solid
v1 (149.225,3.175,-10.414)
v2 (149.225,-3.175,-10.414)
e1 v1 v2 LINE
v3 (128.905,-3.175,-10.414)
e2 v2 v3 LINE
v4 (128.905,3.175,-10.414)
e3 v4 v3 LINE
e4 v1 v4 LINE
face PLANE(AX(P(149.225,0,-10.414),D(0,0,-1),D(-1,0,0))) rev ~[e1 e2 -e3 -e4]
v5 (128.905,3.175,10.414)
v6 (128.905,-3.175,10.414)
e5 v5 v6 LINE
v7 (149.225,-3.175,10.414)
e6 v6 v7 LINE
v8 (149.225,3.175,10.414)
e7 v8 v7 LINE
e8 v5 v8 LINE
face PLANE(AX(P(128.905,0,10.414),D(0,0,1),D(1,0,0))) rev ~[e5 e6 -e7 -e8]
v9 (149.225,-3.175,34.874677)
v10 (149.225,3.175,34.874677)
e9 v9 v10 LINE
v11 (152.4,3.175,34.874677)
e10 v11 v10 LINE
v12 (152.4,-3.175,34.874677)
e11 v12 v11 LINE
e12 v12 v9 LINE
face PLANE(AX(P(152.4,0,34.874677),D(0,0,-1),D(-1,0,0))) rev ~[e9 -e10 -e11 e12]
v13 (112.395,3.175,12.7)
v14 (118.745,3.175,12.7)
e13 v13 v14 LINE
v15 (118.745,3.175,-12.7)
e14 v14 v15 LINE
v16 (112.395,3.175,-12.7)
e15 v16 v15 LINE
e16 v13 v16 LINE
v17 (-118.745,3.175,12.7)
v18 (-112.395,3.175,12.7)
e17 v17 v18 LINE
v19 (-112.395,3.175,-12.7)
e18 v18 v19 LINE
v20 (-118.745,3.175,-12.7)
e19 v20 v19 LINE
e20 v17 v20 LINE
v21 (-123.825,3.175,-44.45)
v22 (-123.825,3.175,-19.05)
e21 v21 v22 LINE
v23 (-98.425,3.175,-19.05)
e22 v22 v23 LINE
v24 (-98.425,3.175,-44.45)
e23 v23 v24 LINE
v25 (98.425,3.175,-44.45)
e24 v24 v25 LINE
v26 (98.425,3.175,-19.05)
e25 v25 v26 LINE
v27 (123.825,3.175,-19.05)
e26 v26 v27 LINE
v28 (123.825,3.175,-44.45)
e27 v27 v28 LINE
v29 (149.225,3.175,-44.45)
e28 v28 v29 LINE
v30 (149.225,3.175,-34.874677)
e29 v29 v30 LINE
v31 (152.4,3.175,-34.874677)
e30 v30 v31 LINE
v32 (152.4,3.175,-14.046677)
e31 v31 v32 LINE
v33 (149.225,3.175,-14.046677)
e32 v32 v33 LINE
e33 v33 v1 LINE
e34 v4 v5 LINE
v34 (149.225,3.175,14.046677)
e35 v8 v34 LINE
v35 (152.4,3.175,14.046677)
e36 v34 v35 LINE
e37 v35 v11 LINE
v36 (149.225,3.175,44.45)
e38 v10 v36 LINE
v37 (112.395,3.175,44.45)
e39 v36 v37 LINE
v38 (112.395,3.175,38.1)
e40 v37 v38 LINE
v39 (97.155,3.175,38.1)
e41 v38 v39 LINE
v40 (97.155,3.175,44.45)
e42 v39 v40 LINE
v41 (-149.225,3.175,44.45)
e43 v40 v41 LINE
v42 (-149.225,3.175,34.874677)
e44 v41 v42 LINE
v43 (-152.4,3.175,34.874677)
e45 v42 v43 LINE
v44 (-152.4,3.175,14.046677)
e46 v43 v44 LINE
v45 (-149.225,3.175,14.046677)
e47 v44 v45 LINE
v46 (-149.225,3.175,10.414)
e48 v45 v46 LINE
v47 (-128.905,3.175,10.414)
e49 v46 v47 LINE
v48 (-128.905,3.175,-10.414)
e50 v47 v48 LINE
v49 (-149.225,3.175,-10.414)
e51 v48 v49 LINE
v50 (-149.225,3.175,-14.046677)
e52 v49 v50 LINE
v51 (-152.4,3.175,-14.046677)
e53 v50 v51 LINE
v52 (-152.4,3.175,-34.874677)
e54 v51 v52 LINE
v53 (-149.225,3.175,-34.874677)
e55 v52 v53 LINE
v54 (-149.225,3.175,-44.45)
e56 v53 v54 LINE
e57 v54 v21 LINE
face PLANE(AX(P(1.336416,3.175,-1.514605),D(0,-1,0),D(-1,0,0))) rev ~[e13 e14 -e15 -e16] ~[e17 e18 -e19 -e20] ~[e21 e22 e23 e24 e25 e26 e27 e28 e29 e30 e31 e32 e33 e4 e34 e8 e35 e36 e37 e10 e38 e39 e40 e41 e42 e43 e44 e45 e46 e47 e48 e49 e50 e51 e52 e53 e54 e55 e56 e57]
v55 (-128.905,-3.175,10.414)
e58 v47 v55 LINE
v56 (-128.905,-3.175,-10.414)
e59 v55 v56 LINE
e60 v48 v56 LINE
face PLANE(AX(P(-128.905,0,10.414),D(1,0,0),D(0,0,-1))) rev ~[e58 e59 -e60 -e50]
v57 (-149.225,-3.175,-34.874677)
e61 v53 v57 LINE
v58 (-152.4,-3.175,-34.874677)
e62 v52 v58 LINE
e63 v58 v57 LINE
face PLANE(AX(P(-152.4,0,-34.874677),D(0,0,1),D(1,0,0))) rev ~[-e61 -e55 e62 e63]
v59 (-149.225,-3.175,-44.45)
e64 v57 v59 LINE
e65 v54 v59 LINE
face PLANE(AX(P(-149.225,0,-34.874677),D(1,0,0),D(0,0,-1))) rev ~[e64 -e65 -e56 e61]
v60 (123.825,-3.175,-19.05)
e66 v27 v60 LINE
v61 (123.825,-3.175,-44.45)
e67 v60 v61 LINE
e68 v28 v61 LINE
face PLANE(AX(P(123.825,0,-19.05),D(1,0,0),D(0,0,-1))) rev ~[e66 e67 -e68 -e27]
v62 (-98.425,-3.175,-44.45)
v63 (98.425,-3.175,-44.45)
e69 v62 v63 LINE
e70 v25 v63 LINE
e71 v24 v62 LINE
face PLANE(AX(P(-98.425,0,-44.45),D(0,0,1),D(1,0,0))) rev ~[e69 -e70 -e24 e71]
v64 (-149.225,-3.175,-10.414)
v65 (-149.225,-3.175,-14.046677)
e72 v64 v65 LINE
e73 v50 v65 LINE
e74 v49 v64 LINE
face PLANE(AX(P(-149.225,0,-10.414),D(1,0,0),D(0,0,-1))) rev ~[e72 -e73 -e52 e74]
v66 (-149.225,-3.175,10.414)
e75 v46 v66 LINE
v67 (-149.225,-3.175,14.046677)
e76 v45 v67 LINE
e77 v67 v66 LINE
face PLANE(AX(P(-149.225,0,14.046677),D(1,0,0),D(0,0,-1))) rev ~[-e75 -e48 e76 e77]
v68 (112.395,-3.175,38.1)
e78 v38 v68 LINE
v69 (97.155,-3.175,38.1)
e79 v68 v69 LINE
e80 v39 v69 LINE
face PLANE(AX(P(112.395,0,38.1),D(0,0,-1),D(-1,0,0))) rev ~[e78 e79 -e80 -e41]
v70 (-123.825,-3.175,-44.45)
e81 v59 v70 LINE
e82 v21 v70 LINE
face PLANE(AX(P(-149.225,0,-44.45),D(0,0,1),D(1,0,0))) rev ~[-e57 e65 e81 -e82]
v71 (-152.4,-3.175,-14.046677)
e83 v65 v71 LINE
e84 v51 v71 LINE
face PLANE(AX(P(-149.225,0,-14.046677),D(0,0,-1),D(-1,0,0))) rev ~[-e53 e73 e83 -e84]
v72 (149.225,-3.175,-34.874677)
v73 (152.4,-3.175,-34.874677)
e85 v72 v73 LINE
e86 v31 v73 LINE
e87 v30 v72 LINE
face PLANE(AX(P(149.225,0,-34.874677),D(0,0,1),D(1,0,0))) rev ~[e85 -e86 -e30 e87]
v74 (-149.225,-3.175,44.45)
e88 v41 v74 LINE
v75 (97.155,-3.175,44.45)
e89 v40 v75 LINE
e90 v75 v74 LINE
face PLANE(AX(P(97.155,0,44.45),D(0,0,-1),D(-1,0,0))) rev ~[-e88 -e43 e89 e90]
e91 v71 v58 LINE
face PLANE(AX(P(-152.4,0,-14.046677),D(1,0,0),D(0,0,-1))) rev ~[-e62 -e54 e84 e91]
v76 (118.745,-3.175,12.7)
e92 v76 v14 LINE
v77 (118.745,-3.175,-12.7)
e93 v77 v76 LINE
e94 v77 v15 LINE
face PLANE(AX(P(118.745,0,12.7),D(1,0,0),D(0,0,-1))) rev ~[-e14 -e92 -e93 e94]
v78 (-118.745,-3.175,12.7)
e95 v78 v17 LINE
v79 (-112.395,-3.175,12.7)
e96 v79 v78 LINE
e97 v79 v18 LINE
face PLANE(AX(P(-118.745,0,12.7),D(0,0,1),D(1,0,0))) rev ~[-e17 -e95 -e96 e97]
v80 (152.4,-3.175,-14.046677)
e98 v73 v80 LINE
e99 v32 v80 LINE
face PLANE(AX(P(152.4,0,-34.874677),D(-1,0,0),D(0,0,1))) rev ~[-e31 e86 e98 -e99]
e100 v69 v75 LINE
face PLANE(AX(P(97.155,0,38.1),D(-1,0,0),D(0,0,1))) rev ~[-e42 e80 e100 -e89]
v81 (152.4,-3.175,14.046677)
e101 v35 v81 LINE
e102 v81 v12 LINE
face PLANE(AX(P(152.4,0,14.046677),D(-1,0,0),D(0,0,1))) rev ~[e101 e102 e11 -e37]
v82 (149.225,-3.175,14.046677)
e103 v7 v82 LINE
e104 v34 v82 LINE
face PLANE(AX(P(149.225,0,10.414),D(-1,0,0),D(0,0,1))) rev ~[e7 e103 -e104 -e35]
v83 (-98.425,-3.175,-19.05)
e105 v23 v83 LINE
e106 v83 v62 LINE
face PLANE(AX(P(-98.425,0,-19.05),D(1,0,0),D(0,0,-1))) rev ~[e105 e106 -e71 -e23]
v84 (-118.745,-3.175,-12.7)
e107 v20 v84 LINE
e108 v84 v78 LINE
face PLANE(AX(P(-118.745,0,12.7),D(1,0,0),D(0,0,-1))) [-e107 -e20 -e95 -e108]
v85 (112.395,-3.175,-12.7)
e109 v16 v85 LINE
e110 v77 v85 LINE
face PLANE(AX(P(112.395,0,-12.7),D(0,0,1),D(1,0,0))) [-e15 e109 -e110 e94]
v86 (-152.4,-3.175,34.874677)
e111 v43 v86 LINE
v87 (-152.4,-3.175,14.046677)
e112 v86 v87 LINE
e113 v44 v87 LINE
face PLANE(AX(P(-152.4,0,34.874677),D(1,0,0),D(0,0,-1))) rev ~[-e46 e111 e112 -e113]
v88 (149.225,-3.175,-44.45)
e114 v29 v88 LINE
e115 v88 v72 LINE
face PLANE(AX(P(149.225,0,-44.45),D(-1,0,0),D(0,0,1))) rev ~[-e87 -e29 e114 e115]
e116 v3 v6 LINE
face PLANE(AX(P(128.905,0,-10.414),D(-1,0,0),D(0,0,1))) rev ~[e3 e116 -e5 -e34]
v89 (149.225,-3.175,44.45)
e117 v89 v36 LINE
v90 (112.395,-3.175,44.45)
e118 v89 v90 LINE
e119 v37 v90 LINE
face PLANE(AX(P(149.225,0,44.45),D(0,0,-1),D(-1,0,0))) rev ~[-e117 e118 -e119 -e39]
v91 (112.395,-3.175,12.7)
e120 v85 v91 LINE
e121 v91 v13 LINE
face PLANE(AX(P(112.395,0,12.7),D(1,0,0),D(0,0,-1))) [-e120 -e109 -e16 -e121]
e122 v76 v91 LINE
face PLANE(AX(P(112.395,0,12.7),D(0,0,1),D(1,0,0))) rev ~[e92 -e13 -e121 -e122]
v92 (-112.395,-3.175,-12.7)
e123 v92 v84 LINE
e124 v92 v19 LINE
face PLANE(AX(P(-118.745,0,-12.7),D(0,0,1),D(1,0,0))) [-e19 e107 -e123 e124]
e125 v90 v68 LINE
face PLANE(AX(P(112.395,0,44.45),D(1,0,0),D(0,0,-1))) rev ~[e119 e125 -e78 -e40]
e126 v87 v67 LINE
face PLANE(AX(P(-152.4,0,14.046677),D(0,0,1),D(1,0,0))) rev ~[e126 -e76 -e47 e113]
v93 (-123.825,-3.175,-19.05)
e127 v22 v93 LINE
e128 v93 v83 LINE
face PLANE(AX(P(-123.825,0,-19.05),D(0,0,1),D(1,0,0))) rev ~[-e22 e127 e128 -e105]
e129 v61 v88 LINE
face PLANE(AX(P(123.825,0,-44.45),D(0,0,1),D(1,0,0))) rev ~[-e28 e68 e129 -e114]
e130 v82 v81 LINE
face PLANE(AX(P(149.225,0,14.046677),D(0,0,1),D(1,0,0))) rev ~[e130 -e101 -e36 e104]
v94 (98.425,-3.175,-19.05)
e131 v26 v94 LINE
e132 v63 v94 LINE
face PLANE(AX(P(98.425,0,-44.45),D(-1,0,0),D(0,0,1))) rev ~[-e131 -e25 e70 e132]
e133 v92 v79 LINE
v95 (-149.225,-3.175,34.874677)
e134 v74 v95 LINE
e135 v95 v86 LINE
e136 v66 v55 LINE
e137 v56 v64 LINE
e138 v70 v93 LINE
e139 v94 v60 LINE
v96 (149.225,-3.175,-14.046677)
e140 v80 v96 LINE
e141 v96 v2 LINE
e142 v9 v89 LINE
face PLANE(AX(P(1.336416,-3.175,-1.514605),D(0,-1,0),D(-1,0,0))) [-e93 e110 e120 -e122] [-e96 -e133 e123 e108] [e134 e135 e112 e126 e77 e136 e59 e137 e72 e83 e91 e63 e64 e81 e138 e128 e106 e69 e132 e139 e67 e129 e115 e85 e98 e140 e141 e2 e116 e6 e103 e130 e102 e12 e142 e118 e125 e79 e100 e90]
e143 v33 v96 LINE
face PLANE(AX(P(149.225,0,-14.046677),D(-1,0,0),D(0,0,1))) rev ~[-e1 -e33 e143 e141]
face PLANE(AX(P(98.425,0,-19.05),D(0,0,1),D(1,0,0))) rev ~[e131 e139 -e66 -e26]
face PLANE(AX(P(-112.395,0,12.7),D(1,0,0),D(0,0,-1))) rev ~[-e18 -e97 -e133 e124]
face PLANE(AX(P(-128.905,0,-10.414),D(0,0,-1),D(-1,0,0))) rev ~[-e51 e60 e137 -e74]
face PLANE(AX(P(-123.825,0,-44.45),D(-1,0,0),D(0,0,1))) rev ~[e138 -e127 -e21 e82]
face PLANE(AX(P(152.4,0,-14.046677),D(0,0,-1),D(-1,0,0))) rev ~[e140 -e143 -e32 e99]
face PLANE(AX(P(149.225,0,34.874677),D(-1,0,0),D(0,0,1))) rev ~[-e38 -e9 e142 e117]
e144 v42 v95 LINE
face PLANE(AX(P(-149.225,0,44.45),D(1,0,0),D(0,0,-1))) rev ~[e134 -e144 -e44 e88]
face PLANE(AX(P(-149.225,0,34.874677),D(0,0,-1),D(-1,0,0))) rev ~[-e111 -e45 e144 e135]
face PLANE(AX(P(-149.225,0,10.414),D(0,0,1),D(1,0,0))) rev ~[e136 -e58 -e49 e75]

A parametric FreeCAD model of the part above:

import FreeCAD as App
import Part
import Sketcher

V = App.Vector
Q = App.Units.Quantity


def add_polygon(sketch, points):
    """Adds a closed chain of lines whose ends are joined by coincident constraints."""
    first, n = sketch.GeometryCount, len(points)
    for a, b in zip(points, points[1:] + points[:1]):
        sketch.addGeometry(Part.LineSegment(App.Vector(*a, 0), App.Vector(*b, 0)), False)
    for i in range(n):
        sketch.addConstraint(Sketcher.Constraint("Coincident", first + i, 2, first + (i + 1) % n, 1))

doc = App.newDocument("Part")
body = doc.addObject("PartDesign::Body", "Body")

sketch1 = body.newObject("Sketcher::SketchObject", "Sketch")
sketch1.AttachmentSupport = (doc.getObject("XZ_Plane"), [""])
sketch1.MapMode = "FlatFace"
add_polygon(sketch1, [(112.4, 44.5), (149.2, 44.5), (149.2, 34.9), (152.4, 34.9), (152.4, 14), (149.2, 14), (149.2, 10.4), (128.9, 10.4), (128.9, -10.4), (149.2, -10.4), (149.2, -14), (152.4, -14), (152.4, -34.9), (149.2, -34.9), (149.2, -44.5), (123.8, -44.5), (123.8, -19.1), (98.4, -19.1), (98.4, -44.5), (-98.4, -44.5), (-98.4, -19.1), (-123.8, -19.1), (-123.8, -44.5), (-149.2, -44.5), (-149.2, -34.9), (-152.4, -34.9), (-152.4, -14), (-149.2, -14), (-149.2, -10.4), (-128.9, -10.4), (-128.9, 10.4), (-149.2, 10.4), (-149.2, 14), (-152.4, 14), (-152.4, 34.9), (-149.2, 34.9), (-149.2, 44.5), (97.2, 44.5), (97.2, 38.1), (112.4, 38.1)])
sketch1.addConstraint([
    Sketcher.Constraint("Horizontal", 0),
    Sketcher.Constraint("Vertical", 1),
    Sketcher.Constraint("Horizontal", 2),
    Sketcher.Constraint("Vertical", 3),
    Sketcher.Constraint("Horizontal", 4),
    Sketcher.Constraint("Vertical", 5),
    Sketcher.Constraint("Horizontal", 6),
    Sketcher.Constraint("Vertical", 7),
    Sketcher.Constraint("Horizontal", 8),
    Sketcher.Constraint("Vertical", 9),
    Sketcher.Constraint("Horizontal", 10),
    Sketcher.Constraint("Vertical", 11),
    Sketcher.Constraint("Horizontal", 12),
    Sketcher.Constraint("Vertical", 13),
    Sketcher.Constraint("Horizontal", 14),
    Sketcher.Constraint("Vertical", 15),
    Sketcher.Constraint("Horizontal", 16),
    Sketcher.Constraint("Vertical", 17),
    Sketcher.Constraint("Horizontal", 18),
    Sketcher.Constraint("Vertical", 19),
    Sketcher.Constraint("Horizontal", 20),
    Sketcher.Constraint("Vertical", 21),
    Sketcher.Constraint("Horizontal", 22),
    Sketcher.Constraint("Vertical", 23),
    Sketcher.Constraint("Horizontal", 24),
    Sketcher.Constraint("Vertical", 25),
    Sketcher.Constraint("Horizontal", 26),
    Sketcher.Constraint("Vertical", 27),
    Sketcher.Constraint("Horizontal", 28),
    Sketcher.Constraint("Vertical", 29),
    Sketcher.Constraint("Horizontal", 30),
    Sketcher.Constraint("Vertical", 31),
    Sketcher.Constraint("Horizontal", 32),
    Sketcher.Constraint("Vertical", 33),
    Sketcher.Constraint("Horizontal", 34),
    Sketcher.Constraint("Vertical", 35),
    Sketcher.Constraint("Horizontal", 36),
    Sketcher.Constraint("Vertical", 37),
    Sketcher.Constraint("Horizontal", 38),
    Sketcher.Constraint("Vertical", 39),
    Sketcher.Constraint("Symmetric", 0, 2, 22, 2, -1, 1),
    Sketcher.Constraint("Symmetric", 2, 2, 24, 2, -1, 1),
    Sketcher.Constraint("Symmetric", 4, 2, 26, 2, -1, 1),
    Sketcher.Constraint("Symmetric", 6, 2, 28, 2, -1, 1),
    Sketcher.Constraint("Symmetric", 8, 2, 30, 2, -1, 1),
    Sketcher.Constraint("Symmetric", 10, 2, 32, 2, -1, 1),
    Sketcher.Constraint("Symmetric", 12, 2, 34, 2, -1, 1),
    Sketcher.Constraint("Symmetric", 16, 2, 19, 2, -2),
    Sketcher.Constraint("Symmetric", 14, 2, 21, 2, -2),
    Sketcher.Constraint("Symmetric", 12, 2, 23, 2, -2),
    Sketcher.Constraint("Symmetric", 10, 2, 25, 2, -2),
    Sketcher.Constraint("Symmetric", 8, 2, 27, 2, -2),
    Sketcher.Constraint("Horizontal", 14, 2, 17, 2),
    Sketcher.Constraint("Horizontal", 0, 2, 35, 2),
    Sketcher.Constraint("Vertical", 1, 2, 4, 2),
    Sketcher.Constraint("Equal", 14, 16),
    Sketcher.Constraint("Equal", 3, 7),
    Sketcher.Constraint("Equal", 22, 15),
    Sketcher.Constraint("DistanceX", 14, 2, 14, 1, Q("1 in")),
    Sketcher.Constraint("DistanceX", 6, 2, 6, 1, Q("0.8 in")),
    Sketcher.Constraint("DistanceX", 36, 1, 36, 2, Q("9.7 in")),
    Sketcher.Constraint("DistanceX", 38, 1, 38, 2, Q("0.6 in")),
    Sketcher.Constraint("DistanceX", -1, 1, 2, 2, Q("6 in")),
    Sketcher.Constraint("DistanceX", 0, 1, 0, 2, Q("1.45 in")),
    Sketcher.Constraint("DistanceY", 3, 2, 3, 1, Q("0.82 in")),
    Sketcher.Constraint("DistanceY", 37, 2, 37, 1, Q("0.25 in")),
    Sketcher.Constraint("DistanceY", -1, 1, 37, 2, Q("1.5 in")),
    Sketcher.Constraint("DistanceY", 1, 2, 1, 1, 9.575323),
])
pad1 = body.newObject("PartDesign::Pad", "Pad")
pad1.Profile = sketch1
pad1.Length = Q("0.25 in")
pad1.Midplane = True

sketch2 = body.newObject("Sketcher::SketchObject", "Sketch001")
sketch2.AttachmentSupport = (doc.getObject("XZ_Plane"), [""])
sketch2.MapMode = "FlatFace"
add_polygon(sketch2, [(112, -13), (112, 13), (119, 13), (119, -13)])
add_polygon(sketch2, [(-119, -13), (-119, 13), (-112, 13), (-112, -13)])
sketch2.addConstraint([
    Sketcher.Constraint("Vertical", 0),
    Sketcher.Constraint("Horizontal", 1),
    Sketcher.Constraint("Vertical", 2),
    Sketcher.Constraint("Horizontal", 3),
    Sketcher.Constraint("Vertical", 4),
    Sketcher.Constraint("Horizontal", 5),
    Sketcher.Constraint("Vertical", 6),
    Sketcher.Constraint("Horizontal", 7),
    Sketcher.Constraint("Symmetric", 2, 2, 4, 2, -1, 1),
    Sketcher.Constraint("Symmetric", 0, 2, 6, 2, -1, 1),
    Sketcher.Constraint("Horizontal", 1, 2, 4, 2),
    Sketcher.Constraint("DistanceY", 0, 1, 0, 2, Q("1 in")),
    Sketcher.Constraint("DistanceX", 1, 1, 1, 2, Q("0.25 in")),
    Sketcher.Constraint("DistanceX", 4, 2, 0, 2, Q("9.1 in")),
])
pocket1 = body.newObject("PartDesign::Pocket", "Pocket")
pocket1.Profile = sketch2
pocket1.Type = "ThroughAll"
pocket1.Midplane = True

doc.recompute()
